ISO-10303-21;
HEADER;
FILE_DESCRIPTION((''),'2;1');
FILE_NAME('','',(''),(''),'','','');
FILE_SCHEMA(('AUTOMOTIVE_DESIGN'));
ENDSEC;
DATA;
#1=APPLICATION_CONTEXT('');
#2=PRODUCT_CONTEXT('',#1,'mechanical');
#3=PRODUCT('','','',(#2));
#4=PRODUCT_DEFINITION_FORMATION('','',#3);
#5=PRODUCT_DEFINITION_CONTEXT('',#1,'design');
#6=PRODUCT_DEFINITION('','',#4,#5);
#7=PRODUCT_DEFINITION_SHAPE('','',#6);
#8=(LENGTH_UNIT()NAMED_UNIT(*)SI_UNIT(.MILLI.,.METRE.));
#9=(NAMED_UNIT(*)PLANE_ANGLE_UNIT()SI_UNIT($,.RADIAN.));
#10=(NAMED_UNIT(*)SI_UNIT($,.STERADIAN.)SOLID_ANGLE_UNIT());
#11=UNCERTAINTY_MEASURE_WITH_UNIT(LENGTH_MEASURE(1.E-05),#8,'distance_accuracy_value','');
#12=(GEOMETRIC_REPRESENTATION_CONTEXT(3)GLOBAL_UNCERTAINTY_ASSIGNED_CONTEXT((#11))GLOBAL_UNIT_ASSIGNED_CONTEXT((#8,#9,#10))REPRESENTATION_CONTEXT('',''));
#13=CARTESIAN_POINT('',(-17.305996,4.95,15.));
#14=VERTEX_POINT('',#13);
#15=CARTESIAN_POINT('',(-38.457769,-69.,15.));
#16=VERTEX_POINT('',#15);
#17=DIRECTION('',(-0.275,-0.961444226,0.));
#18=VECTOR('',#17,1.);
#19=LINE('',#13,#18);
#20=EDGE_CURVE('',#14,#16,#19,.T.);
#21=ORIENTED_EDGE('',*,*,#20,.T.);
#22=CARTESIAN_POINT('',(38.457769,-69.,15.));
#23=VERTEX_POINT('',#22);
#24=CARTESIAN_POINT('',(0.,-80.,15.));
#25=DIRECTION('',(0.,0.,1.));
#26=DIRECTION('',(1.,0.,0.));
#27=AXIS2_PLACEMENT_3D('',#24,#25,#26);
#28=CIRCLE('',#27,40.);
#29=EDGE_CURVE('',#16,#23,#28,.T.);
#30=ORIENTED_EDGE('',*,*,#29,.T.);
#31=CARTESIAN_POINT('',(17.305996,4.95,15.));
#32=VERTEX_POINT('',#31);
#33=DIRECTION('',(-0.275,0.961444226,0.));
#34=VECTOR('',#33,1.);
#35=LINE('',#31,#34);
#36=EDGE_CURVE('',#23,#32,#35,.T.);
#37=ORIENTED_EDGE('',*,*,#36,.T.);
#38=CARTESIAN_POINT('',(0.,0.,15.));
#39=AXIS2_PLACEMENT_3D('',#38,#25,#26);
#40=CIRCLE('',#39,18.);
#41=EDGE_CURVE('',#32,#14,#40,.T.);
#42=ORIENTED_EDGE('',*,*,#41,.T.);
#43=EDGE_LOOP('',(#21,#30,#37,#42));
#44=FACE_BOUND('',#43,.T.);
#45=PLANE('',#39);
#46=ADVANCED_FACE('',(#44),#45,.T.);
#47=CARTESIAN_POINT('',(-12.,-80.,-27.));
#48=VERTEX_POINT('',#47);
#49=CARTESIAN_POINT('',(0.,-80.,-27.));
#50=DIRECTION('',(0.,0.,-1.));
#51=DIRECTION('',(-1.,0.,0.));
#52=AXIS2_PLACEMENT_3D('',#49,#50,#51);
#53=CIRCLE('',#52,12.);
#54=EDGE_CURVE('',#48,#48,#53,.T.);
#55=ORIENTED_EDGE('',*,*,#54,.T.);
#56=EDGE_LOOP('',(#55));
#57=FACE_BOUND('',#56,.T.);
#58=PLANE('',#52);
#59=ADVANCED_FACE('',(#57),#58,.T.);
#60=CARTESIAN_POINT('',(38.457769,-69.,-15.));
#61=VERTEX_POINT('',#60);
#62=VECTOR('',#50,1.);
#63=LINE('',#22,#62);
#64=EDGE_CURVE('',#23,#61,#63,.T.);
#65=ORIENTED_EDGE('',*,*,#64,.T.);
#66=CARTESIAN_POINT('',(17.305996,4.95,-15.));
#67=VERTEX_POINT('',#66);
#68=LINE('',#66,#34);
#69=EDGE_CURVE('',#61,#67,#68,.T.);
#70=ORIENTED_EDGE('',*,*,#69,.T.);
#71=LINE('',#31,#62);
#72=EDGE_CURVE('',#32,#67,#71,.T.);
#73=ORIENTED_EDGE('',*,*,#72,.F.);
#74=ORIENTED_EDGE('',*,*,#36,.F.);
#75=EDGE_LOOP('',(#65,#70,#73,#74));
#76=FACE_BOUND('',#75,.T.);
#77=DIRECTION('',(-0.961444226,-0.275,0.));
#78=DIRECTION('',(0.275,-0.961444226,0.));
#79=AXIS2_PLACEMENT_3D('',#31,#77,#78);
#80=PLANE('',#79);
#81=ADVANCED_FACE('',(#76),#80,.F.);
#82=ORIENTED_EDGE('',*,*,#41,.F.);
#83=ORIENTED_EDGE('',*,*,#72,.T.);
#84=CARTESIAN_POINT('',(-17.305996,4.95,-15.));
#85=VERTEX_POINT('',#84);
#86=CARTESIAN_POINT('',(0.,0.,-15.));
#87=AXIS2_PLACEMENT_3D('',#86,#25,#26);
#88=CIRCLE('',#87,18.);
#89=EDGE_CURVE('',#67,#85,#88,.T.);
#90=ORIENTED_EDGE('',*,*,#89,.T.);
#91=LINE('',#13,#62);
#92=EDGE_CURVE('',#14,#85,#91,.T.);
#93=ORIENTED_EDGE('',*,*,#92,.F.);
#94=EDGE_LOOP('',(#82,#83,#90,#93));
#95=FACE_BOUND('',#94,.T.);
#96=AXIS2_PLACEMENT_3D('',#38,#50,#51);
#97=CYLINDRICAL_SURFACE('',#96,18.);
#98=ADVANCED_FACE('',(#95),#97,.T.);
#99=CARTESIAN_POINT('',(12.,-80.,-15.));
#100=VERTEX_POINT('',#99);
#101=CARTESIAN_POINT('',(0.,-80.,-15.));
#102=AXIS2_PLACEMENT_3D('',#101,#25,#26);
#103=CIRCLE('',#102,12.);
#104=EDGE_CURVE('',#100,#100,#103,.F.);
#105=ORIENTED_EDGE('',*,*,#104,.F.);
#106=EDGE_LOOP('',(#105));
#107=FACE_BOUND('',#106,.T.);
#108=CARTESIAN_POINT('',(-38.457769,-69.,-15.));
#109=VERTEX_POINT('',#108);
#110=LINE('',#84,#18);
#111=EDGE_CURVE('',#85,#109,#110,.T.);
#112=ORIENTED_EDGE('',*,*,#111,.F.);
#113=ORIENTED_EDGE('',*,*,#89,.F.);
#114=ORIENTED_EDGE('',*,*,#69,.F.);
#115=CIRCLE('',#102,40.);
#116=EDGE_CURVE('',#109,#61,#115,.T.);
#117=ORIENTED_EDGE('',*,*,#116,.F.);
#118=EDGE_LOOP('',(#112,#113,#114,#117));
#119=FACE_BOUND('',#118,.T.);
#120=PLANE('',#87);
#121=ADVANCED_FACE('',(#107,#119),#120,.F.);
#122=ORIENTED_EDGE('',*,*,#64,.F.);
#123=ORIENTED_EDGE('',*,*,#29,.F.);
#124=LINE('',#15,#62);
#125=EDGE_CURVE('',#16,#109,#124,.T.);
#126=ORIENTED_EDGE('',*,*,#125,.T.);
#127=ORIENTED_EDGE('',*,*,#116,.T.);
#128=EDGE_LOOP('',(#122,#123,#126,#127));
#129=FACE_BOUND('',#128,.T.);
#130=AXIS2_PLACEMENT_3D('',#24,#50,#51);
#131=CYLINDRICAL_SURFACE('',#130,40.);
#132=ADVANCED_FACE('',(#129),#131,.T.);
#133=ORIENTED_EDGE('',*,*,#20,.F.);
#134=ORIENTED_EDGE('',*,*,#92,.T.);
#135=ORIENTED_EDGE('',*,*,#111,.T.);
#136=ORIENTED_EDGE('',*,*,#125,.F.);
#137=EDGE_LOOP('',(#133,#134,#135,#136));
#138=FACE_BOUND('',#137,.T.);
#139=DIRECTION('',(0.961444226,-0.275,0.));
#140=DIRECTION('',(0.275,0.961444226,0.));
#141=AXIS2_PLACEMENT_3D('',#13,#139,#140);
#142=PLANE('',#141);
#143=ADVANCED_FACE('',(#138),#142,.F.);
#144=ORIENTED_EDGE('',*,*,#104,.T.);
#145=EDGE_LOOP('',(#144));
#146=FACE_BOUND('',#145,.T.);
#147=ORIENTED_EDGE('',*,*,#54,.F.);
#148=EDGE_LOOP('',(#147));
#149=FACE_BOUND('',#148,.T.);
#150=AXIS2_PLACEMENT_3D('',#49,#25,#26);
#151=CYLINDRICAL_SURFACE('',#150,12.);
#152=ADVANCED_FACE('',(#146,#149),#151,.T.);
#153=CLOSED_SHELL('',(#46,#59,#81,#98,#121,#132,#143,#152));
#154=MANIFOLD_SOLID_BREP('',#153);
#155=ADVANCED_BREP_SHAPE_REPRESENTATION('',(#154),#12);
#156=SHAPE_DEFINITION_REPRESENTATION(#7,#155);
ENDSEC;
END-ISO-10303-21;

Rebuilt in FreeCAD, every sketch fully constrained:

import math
import FreeCAD as App
import Part
import Sketcher
from FreeCAD import Vector
Q = App.Units.Quantity

doc = App.newDocument("Part")
body = doc.addObject("PartDesign::Body", "Body")

# Sketch on XY plane
sketch1 = body.newObject("Sketcher::SketchObject", "Sketch")
sketch1.AttachmentSupport = (doc.getObject("XY_Plane"), [""])
sketch1.MapMode = "FlatFace"
sketch1.addGeometry([
    Part.LineSegment(Vector(-17, 5, 0), Vector(-38, -69, 0)),
    Part.ArcOfCircle(Part.Circle(Vector(0, -80, 0), Vector(0, 0, 1), 40), math.radians(164), math.radians(376)),
    Part.LineSegment(Vector(38, -69, 0), Vector(17, 5, 0)),
    Part.ArcOfCircle(Part.Circle(Vector(0, 0, 0), Vector(0, 0, 1), 18), math.radians(16), math.radians(164)),
], False)
sketch1.addConstraint([
    Sketcher.Constraint("Tangent", 0, 2, 1, 1),
    Sketcher.Constraint("Tangent", 1, 2, 2, 1),
    Sketcher.Constraint("Tangent", 2, 2, 3, 1),
    Sketcher.Constraint("Tangent", 3, 2, 0, 1),
    Sketcher.Constraint("Coincident", 3, 3, -1, 1),
    Sketcher.Constraint("PointOnObject", 1, 3, -2),
    Sketcher.Constraint("Radius", 1, Q("40 mm")),
    Sketcher.Constraint("Radius", 3, Q("18 mm")),
    Sketcher.Constraint("DistanceY", 1, 3, -1, 1, Q("80 mm")),
])
pad1 = body.newObject("PartDesign::Pad", "Pad")
pad1.Profile = sketch1
pad1.Length = 30
pad1.Midplane = True

# Sketch on XY plane
sketch2 = body.newObject("Sketcher::SketchObject", "Sketch001")
sketch2.AttachmentSupport = (doc.getObject("XY_Plane"), [""])
sketch2.MapMode = "FlatFace"
sketch2.AttachmentOffset = App.Placement(Vector(0, 0, -15), App.Rotation())
sketch2.addGeometry(Part.Circle(Vector(0, -80, 0), Vector(0, 0, 1), 12), False)
sketch2.addConstraint([
    Sketcher.Constraint("PointOnObject", 0, 3, -2),
    Sketcher.Constraint("Diameter", 0, Q("24 mm")),
    Sketcher.Constraint("DistanceY", 0, 3, -1, 1, Q("80 mm")),
])
pad2 = body.newObject("PartDesign::Pad", "Pad001")
pad2.Profile = sketch2
pad2.Length = 12
pad2.Reversed = True

doc.recompute()
